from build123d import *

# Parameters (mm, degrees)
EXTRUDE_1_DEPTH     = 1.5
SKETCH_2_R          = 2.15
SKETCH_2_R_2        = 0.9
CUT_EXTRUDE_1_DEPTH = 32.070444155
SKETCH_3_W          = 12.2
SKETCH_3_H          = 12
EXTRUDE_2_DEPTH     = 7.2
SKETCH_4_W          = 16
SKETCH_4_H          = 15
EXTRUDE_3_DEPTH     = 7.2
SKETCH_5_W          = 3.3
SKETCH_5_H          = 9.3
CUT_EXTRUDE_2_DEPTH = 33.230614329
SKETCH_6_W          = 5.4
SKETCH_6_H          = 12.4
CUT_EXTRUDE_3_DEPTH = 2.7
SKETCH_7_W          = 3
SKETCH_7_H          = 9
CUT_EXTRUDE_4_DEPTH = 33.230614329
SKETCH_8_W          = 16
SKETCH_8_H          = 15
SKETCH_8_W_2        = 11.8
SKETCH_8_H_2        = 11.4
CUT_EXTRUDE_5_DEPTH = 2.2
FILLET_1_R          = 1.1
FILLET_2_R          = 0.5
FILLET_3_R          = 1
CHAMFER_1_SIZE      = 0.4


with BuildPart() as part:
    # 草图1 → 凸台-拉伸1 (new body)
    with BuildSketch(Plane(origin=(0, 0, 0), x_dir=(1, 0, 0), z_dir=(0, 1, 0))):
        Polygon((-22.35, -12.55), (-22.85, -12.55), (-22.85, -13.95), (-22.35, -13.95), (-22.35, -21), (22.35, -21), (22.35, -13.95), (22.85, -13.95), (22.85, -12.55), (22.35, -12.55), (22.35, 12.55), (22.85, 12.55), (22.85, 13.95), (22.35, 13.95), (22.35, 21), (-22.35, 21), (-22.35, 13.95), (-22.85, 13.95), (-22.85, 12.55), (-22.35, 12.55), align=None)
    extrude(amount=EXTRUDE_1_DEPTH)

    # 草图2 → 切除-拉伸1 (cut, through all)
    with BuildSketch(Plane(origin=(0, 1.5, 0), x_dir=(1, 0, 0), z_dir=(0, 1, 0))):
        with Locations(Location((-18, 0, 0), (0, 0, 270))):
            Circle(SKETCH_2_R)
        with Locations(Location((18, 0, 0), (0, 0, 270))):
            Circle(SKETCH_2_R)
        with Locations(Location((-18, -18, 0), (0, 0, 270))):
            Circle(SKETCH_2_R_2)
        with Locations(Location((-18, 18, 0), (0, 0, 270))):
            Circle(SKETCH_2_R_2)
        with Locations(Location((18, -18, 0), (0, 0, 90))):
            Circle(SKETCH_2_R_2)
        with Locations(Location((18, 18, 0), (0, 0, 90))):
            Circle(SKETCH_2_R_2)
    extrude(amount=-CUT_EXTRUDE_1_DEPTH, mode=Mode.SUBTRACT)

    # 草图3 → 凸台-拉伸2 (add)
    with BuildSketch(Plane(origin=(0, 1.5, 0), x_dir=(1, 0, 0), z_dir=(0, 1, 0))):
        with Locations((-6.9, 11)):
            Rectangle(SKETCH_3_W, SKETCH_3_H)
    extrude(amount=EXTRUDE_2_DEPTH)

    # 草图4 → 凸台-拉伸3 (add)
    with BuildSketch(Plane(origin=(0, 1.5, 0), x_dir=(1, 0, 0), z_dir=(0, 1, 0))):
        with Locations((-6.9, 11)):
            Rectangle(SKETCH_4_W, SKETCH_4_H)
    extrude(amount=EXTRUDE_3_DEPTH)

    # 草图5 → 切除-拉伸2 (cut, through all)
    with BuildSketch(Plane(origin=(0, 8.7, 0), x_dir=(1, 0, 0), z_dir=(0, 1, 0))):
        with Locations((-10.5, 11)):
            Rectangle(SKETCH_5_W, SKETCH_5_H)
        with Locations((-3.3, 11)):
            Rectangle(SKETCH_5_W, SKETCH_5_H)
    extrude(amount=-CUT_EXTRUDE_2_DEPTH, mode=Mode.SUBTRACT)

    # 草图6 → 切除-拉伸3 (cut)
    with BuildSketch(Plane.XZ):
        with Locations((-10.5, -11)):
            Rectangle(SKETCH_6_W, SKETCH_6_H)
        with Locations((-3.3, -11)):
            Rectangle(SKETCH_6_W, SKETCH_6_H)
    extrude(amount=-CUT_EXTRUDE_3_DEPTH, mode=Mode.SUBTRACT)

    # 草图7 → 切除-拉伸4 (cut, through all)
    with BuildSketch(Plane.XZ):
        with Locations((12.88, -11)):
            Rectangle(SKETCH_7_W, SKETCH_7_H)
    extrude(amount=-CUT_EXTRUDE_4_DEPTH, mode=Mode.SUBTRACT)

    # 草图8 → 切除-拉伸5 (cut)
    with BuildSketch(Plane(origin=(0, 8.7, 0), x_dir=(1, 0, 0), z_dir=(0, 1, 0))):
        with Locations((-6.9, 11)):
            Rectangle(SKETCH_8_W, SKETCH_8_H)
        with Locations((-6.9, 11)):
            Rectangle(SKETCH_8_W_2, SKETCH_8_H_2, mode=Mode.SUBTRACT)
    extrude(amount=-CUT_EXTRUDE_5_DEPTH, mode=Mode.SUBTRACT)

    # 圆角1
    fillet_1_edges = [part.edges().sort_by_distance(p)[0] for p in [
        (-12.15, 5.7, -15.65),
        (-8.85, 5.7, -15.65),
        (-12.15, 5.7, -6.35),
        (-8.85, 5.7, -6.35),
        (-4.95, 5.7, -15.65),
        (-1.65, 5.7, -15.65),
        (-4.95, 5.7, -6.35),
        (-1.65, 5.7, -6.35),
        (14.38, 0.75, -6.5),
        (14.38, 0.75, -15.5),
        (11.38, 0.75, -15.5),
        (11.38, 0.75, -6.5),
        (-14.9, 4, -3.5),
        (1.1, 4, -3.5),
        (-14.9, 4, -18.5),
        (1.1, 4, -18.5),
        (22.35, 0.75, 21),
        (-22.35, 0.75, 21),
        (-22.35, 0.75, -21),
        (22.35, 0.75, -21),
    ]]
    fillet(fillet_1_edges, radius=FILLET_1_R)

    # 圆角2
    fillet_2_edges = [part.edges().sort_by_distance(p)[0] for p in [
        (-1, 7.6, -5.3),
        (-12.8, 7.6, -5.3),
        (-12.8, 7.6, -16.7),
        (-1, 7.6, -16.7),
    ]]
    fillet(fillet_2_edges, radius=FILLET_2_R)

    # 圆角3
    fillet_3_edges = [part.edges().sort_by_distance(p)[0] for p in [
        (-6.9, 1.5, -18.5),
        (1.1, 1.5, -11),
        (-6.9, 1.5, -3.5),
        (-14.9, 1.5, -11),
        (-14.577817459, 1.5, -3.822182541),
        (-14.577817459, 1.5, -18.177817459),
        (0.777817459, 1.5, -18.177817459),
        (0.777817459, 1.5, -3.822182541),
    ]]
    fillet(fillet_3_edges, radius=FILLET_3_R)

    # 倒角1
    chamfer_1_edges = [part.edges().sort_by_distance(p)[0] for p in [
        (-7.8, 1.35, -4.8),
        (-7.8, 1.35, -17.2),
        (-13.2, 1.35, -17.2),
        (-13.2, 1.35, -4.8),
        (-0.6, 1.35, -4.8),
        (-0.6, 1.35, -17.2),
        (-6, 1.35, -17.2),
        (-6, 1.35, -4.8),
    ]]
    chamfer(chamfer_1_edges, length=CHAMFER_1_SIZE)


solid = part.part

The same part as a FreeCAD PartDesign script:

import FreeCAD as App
import Part
import Sketcher

V = App.Vector


def edges_at(feature, points):
    """Names of the edges that pass closest to the given points."""
    edges = feature.Shape.Edges
    near = lambda p: min(range(len(edges)), key=lambda i: edges[i].distToShape(Part.Vertex(*p))[0])
    return sorted({f"Edge{near(p) + 1}" for p in points})

doc = App.newDocument("Part")
params = doc.addObject("Spreadsheet::Sheet", "Params")
for row, (alias, value) in enumerate([
    ("sketch1_width", "0.5 mm"),
    ("sketch1_width2", "44.7 mm"),
    ("sketch1_height", "1.4 mm"),
    ("sketch1_height2", "25.1 mm"),
    ("pad1_length", "1.5 mm"),
    ("sketch2_diameter", "4.3 mm"),
    ("sketch2_diameter2", "1.8 mm"),
    ("sketch3_height", "12 mm"),
    ("sketch3_width", "12.2 mm"),
    ("pad2_length", "7.2 mm"),
    ("sketch4_width", "16 mm"),
    ("sketch4_height", "15 mm"),
    ("pad3_length", "7.2 mm"),
    ("sketch5_width", "3.3 mm"),
    ("sketch5_height", "9.3 mm"),
    ("sketch6_width", "5.4 mm"),
    ("sketch6_height", "12.4 mm"),
    ("pocket3_length", "2.7 mm"),
    ("sketch7_width", "3 mm"),
    ("sketch7_height", "9 mm"),
    ("sketch8_width", "16 mm"),
    ("sketch8_height", "15 mm"),
    ("sketch8_width2", "11.8 mm"),
    ("sketch8_height2", "11.4 mm"),
    ("pocket5_length", "2.2 mm"),
    ("fillet_radius", "1.1 mm"),
    ("fillet2_radius", "0.5 mm"),
    ("fillet3_radius", "1 mm"),
    ("chamfer_size", "0.4 mm"),
], start=1):
    params.set(f"A{row}", alias)
    params.set(f"B{row}", "=" + value)
    params.setAlias(f"B{row}", alias)

body = doc.addObject("PartDesign::Body", "Body")

# Sketch on XZ plane
sketch1 = body.newObject("Sketcher::SketchObject", "Sketch")
sketch1.AttachmentSupport = (doc.getObject("XZ_Plane"), [""])
sketch1.MapMode = "FlatFace"
sketch1.addGeometry(Part.LineSegment(V(-22.4, 12.6, 0), V(-22.9, 12.6, 0)), False)
sketch1.addGeometry(Part.LineSegment(V(-22.9, 12.6, 0), V(-22.9, 13.9, 0)), False)
sketch1.addGeometry(Part.LineSegment(V(-22.9, 13.9, 0), V(-22.4, 13.9, 0)), False)
sketch1.addGeometry(Part.LineSegment(V(-22.4, 13.9, 0), V(-22.4, 21, 0)), False)
sketch1.addGeometry(Part.LineSegment(V(-22.4, 21, 0), V(22.4, 21, 0)), False)
sketch1.addGeometry(Part.LineSegment(V(22.4, 21, 0), V(22.4, 13.9, 0)), False)
sketch1.addGeometry(Part.LineSegment(V(22.4, 13.9, 0), V(22.9, 13.9, 0)), False)
sketch1.addGeometry(Part.LineSegment(V(22.9, 13.9, 0), V(22.9, 12.6, 0)), False)
sketch1.addGeometry(Part.LineSegment(V(22.9, 12.6, 0), V(22.4, 12.6, 0)), False)
sketch1.addGeometry(Part.LineSegment(V(22.4, 12.6, 0), V(22.4, -12.6, 0)), False)
sketch1.addGeometry(Part.LineSegment(V(22.4, -12.6, 0), V(22.9, -12.6, 0)), False)
sketch1.addGeometry(Part.LineSegment(V(22.9, -12.6, 0), V(22.9, -13.9, 0)), False)
sketch1.addGeometry(Part.LineSegment(V(22.9, -13.9, 0), V(22.4, -13.9, 0)), False)
sketch1.addGeometry(Part.LineSegment(V(22.4, -13.9, 0), V(22.4, -21, 0)), False)
sketch1.addGeometry(Part.LineSegment(V(22.4, -21, 0), V(-22.4, -21, 0)), False)
sketch1.addGeometry(Part.LineSegment(V(-22.4, -21, 0), V(-22.4, -13.9, 0)), False)
sketch1.addGeometry(Part.LineSegment(V(-22.4, -13.9, 0), V(-22.9, -13.9, 0)), False)
sketch1.addGeometry(Part.LineSegment(V(-22.9, -13.9, 0), V(-22.9, -12.6, 0)), False)
sketch1.addGeometry(Part.LineSegment(V(-22.9, -12.6, 0), V(-22.4, -12.6, 0)), False)
sketch1.addGeometry(Part.LineSegment(V(-22.4, -12.6, 0), V(-22.4, 12.6, 0)), False)
sketch1.addConstraint(Sketcher.Constraint("Coincident", 0, 2, 1, 1))
sketch1.addConstraint(Sketcher.Constraint("Coincident", 1, 2, 2, 1))
sketch1.addConstraint(Sketcher.Constraint("Coincident", 2, 2, 3, 1))
sketch1.addConstraint(Sketcher.Constraint("Coincident", 3, 2, 4, 1))
sketch1.addConstraint(Sketcher.Constraint("Coincident", 4, 2, 5, 1))
sketch1.addConstraint(Sketcher.Constraint("Coincident", 5, 2, 6, 1))
sketch1.addConstraint(Sketcher.Constraint("Coincident", 6, 2, 7, 1))
sketch1.addConstraint(Sketcher.Constraint("Coincident", 7, 2, 8, 1))
sketch1.addConstraint(Sketcher.Constraint("Coincident", 8, 2, 9, 1))
sketch1.addConstraint(Sketcher.Constraint("Coincident", 9, 2, 10, 1))
sketch1.addConstraint(Sketcher.Constraint("Coincident", 10, 2, 11, 1))
sketch1.addConstraint(Sketcher.Constraint("Coincident", 11, 2, 12, 1))
sketch1.addConstraint(Sketcher.Constraint("Coincident", 12, 2, 13, 1))
sketch1.addConstraint(Sketcher.Constraint("Coincident", 13, 2, 14, 1))
sketch1.addConstraint(Sketcher.Constraint("Coincident", 14, 2, 15, 1))
sketch1.addConstraint(Sketcher.Constraint("Coincident", 15, 2, 16, 1))
sketch1.addConstraint(Sketcher.Constraint("Coincident", 16, 2, 17, 1))
sketch1.addConstraint(Sketcher.Constraint("Coincident", 17, 2, 18, 1))
sketch1.addConstraint(Sketcher.Constraint("Coincident", 18, 2, 19, 1))
sketch1.addConstraint(Sketcher.Constraint("Coincident", 19, 2, 0, 1))
sketch1.addConstraint(Sketcher.Constraint("Horizontal", 0))
sketch1.addConstraint(Sketcher.Constraint("Vertical", 1))
sketch1.addConstraint(Sketcher.Constraint("Horizontal", 2))
sketch1.addConstraint(Sketcher.Constraint("Vertical", 3))
sketch1.addConstraint(Sketcher.Constraint("Horizontal", 4))
sketch1.addConstraint(Sketcher.Constraint("Vertical", 5))
sketch1.addConstraint(Sketcher.Constraint("Horizontal", 6))
sketch1.addConstraint(Sketcher.Constraint("Vertical", 7))
sketch1.addConstraint(Sketcher.Constraint("Horizontal", 8))
sketch1.addConstraint(Sketcher.Constraint("Vertical", 9))
sketch1.addConstraint(Sketcher.Constraint("Horizontal", 10))
sketch1.addConstraint(Sketcher.Constraint("Vertical", 11))
sketch1.addConstraint(Sketcher.Constraint("Horizontal", 12))
sketch1.addConstraint(Sketcher.Constraint("Vertical", 13))
sketch1.addConstraint(Sketcher.Constraint("Horizontal", 14))
sketch1.addConstraint(Sketcher.Constraint("Vertical", 15))
sketch1.addConstraint(Sketcher.Constraint("Horizontal", 16))
sketch1.addConstraint(Sketcher.Constraint("Vertical", 17))
sketch1.addConstraint(Sketcher.Constraint("Horizontal", 18))
sketch1.addConstraint(Sketcher.Constraint("Vertical", 19))
sketch1.addConstraint(Sketcher.Constraint("Symmetric", 0, 2, 10, 2, -1, 1))
sketch1.addConstraint(Sketcher.Constraint("Symmetric", 2, 2, 12, 2, -1, 1))
sketch1.addConstraint(Sketcher.Constraint("Symmetric", 4, 2, 14, 2, -1, 1))
sketch1.addConstraint(Sketcher.Constraint("Symmetric", 6, 2, 16, 2, -1, 1))
sketch1.addConstraint(Sketcher.Constraint("Symmetric", 8, 2, 18, 2, -1, 1))
sketch1.addConstraint(Sketcher.Constraint("Symmetric", 2, 2, 5, 2, -2))
sketch1.addConstraint(Sketcher.Constraint("Symmetric", 0, 2, 7, 2, -2))
sketch1.addConstraint(Sketcher.Constraint("Vertical", 5, 2, 8, 2))
sketch1.addConstraint(Sketcher.Constraint("DistanceX", 0, 2, 0, 1, 0.5))
sketch1.addConstraint(Sketcher.Constraint("DistanceX", 4, 1, 4, 2, 44.7))
sketch1.addConstraint(Sketcher.Constraint("DistanceY", 1, 1, 1, 2, 1.4))
sketch1.addConstraint(Sketcher.Constraint("DistanceY", 9, 2, 9, 1, 25.1))
sketch1.addConstraint(Sketcher.Constraint("DistanceY", -1, 1, 3, 2, 21.0))
sketch1.setExpression("Constraints[48]", "Params.sketch1_width")
sketch1.setExpression("Constraints[49]", "Params.sketch1_width2")
sketch1.setExpression("Constraints[50]", "Params.sketch1_height")
sketch1.setExpression("Constraints[51]", "Params.sketch1_height2")
pad1 = body.newObject("PartDesign::Pad", "Pad")
pad1.Profile = sketch1
pad1.setExpression("Length", "Params.pad1_length")
pad1.Reversed = True

# Sketch on XZ plane
sketch2 = body.newObject("Sketcher::SketchObject", "Sketch001")
sketch2.AttachmentSupport = (doc.getObject("XZ_Plane"), [""])
sketch2.MapMode = "FlatFace"
sketch2.AttachmentOffset = App.Placement(V(0, 0, -1.5), App.Rotation())
sketch2.addGeometry(Part.Circle(V(-18, 0, 0), V(0, 0, 1), 2.1), False)
sketch2.addGeometry(Part.Circle(V(18, 0, 0), V(0, 0, 1), 2.1), False)
sketch2.addGeometry(Part.Circle(V(-18, 18, 0), V(0, 0, 1), 0.9), False)
sketch2.addGeometry(Part.Circle(V(-18, -18, 0), V(0, 0, 1), 0.9), False)
sketch2.addGeometry(Part.Circle(V(18, 18, 0), V(0, 0, 1), 0.9), False)
sketch2.addGeometry(Part.Circle(V(18, -18, 0), V(0, 0, 1), 0.9), False)
sketch2.addConstraint(Sketcher.Constraint("Equal", 0, 1))
sketch2.addConstraint(Sketcher.Constraint("Equal", 2, 3))
sketch2.addConstraint(Sketcher.Constraint("Equal", 3, 4))
sketch2.addConstraint(Sketcher.Constraint("Equal", 4, 5))
sketch2.addConstraint(Sketcher.Constraint("Symmetric", 0, 3, 1, 3, -1, 1))
sketch2.addConstraint(Sketcher.Constraint("Symmetric", 3, 3, 4, 3, -1, 1))
sketch2.addConstraint(Sketcher.Constraint("Symmetric", 2, 3, 5, 3, -1, 1))
sketch2.addConstraint(Sketcher.Constraint("Symmetric", 2, 3, 4, 3, -2))
sketch2.addConstraint(Sketcher.Constraint("PointOnObject", 0, 3, -1))
sketch2.addConstraint(Sketcher.Constraint("Vertical", 0, 3, 2, 3))
sketch2.addConstraint(Sketcher.Constraint("Diameter", 0, 4.3))
sketch2.addConstraint(Sketcher.Constraint("Diameter", 2, 1.8))
sketch2.addConstraint(Sketcher.Constraint("DistanceX", 0, 3, -1, 1, 18.0))
sketch2.addConstraint(Sketcher.Constraint("DistanceY", -1, 1, 2, 3, 18.0))
sketch2.setExpression("Constraints[10]", "Params.sketch2_diameter")
sketch2.setExpression("Constraints[11]", "Params.sketch2_diameter2")
pocket1 = body.newObject("PartDesign::Pocket", "Pocket")
pocket1.Profile = sketch2
pocket1.Type = "ThroughAll"
pocket1.Reversed = True

# Sketch on XZ plane
sketch3 = body.newObject("Sketcher::SketchObject", "Sketch002")
sketch3.AttachmentSupport = (doc.getObject("XZ_Plane"), [""])
sketch3.MapMode = "FlatFace"
sketch3.AttachmentOffset = App.Placement(V(0, 0, -1.5), App.Rotation())
sketch3.addGeometry(Part.LineSegment(V(-13, -17, 0), V(-13, -5, 0)), False)
sketch3.addGeometry(Part.LineSegment(V(-13, -5, 0), V(-1, -5, 0)), False)
sketch3.addGeometry(Part.LineSegment(V(-1, -5, 0), V(-1, -17, 0)), False)
sketch3.addGeometry(Part.LineSegment(V(-1, -17, 0), V(-13, -17, 0)), False)
sketch3.addConstraint(Sketcher.Constraint("Coincident", 0, 2, 1, 1))
sketch3.addConstraint(Sketcher.Constraint("Coincident", 1, 2, 2, 1))
sketch3.addConstraint(Sketcher.Constraint("Coincident", 2, 2, 3, 1))
sketch3.addConstraint(Sketcher.Constraint("Coincident", 3, 2, 0, 1))
sketch3.addConstraint(Sketcher.Constraint("Vertical", 0))
sketch3.addConstraint(Sketcher.Constraint("Horizontal", 1))
sketch3.addConstraint(Sketcher.Constraint("Vertical", 2))
sketch3.addConstraint(Sketcher.Constraint("Horizontal", 3))
sketch3.addConstraint(Sketcher.Constraint("DistanceY", 0, 1, 0, 2, 12.0))
sketch3.addConstraint(Sketcher.Constraint("DistanceX", 1, 1, 1, 2, 12.2))
sketch3.addConstraint(Sketcher.Constraint("DistanceX", 0, 2, -1, 1, 13.0))
sketch3.addConstraint(Sketcher.Constraint("DistanceY", 0, 2, -1, 1, 5.0))
sketch3.setExpression("Constraints[8]", "Params.sketch3_height")
sketch3.setExpression("Constraints[9]", "Params.sketch3_width")
pad2 = body.newObject("PartDesign::Pad", "Pad001")
pad2.Profile = sketch3
pad2.setExpression("Length", "Params.pad2_length")
pad2.Reversed = True

# Sketch on XZ plane
sketch4 = body.newObject("Sketcher::SketchObject", "Sketch003")
sketch4.AttachmentSupport = (doc.getObject("XZ_Plane"), [""])
sketch4.MapMode = "FlatFace"
sketch4.AttachmentOffset = App.Placement(V(0, 0, -1.5), App.Rotation())
sketch4.addGeometry(Part.LineSegment(V(-15, -18, 0), V(-15, -4, 0)), False)
sketch4.addGeometry(Part.LineSegment(V(-15, -4, 0), V(1, -4, 0)), False)
sketch4.addGeometry(Part.LineSegment(V(1, -4, 0), V(1, -18, 0)), False)
sketch4.addGeometry(Part.LineSegment(V(1, -18, 0), V(-15, -18, 0)), False)
sketch4.addConstraint(Sketcher.Constraint("Coincident", 0, 2, 1, 1))
sketch4.addConstraint(Sketcher.Constraint("Coincident", 1, 2, 2, 1))
sketch4.addConstraint(Sketcher.Constraint("Coincident", 2, 2, 3, 1))
sketch4.addConstraint(Sketcher.Constraint("Coincident", 3, 2, 0, 1))
sketch4.addConstraint(Sketcher.Constraint("Vertical", 0))
sketch4.addConstraint(Sketcher.Constraint("Horizontal", 1))
sketch4.addConstraint(Sketcher.Constraint("Vertical", 2))
sketch4.addConstraint(Sketcher.Constraint("Horizontal", 3))
sketch4.addConstraint(Sketcher.Constraint("DistanceX", 1, 1, 1, 2, 16.0))
sketch4.addConstraint(Sketcher.Constraint("DistanceY", 0, 1, 0, 2, 15.0))
sketch4.addConstraint(Sketcher.Constraint("DistanceX", 0, 2, -1, 1, 14.9))
sketch4.addConstraint(Sketcher.Constraint("DistanceY", 0, 2, -1, 1, 3.5))
sketch4.setExpression("Constraints[8]", "Params.sketch4_width")
sketch4.setExpression("Constraints[9]", "Params.sketch4_height")
pad3 = body.newObject("PartDesign::Pad", "Pad002")
pad3.Profile = sketch4
pad3.setExpression("Length", "Params.pad3_length")
pad3.Reversed = True

# Sketch on XZ plane
sketch5 = body.newObject("Sketcher::SketchObject", "Sketch004")
sketch5.AttachmentSupport = (doc.getObject("XZ_Plane"), [""])
sketch5.MapMode = "FlatFace"
sketch5.AttachmentOffset = App.Placement(V(0, 0, -8.7), App.Rotation())
sketch5.addGeometry(Part.LineSegment(V(-12.2, -15.7, 0), V(-12.2, -6.3, 0)), False)
sketch5.addGeometry(Part.LineSegment(V(-12.2, -6.3, 0), V(-8.8, -6.3, 0)), False)
sketch5.addGeometry(Part.LineSegment(V(-8.8, -6.3, 0), V(-8.8, -15.7, 0)), False)
sketch5.addGeometry(Part.LineSegment(V(-8.8, -15.7, 0), V(-12.2, -15.7, 0)), False)
sketch5.addGeometry(Part.LineSegment(V(-5, -15.7, 0), V(-5, -6.3, 0)), False)
sketch5.addGeometry(Part.LineSegment(V(-5, -6.3, 0), V(-1.6, -6.3, 0)), False)
sketch5.addGeometry(Part.LineSegment(V(-1.6, -6.3, 0), V(-1.6, -15.7, 0)), False)
sketch5.addGeometry(Part.LineSegment(V(-1.6, -15.7, 0), V(-5, -15.7, 0)), False)
sketch5.addConstraint(Sketcher.Constraint("Coincident", 0, 2, 1, 1))
sketch5.addConstraint(Sketcher.Constraint("Coincident", 1, 2, 2, 1))
sketch5.addConstraint(Sketcher.Constraint("Coincident", 2, 2, 3, 1))
sketch5.addConstraint(Sketcher.Constraint("Coincident", 3, 2, 0, 1))
sketch5.addConstraint(Sketcher.Constraint("Coincident", 4, 2, 5, 1))
sketch5.addConstraint(Sketcher.Constraint("Coincident", 5, 2, 6, 1))
sketch5.addConstraint(Sketcher.Constraint("Coincident", 6, 2, 7, 1))
sketch5.addConstraint(Sketcher.Constraint("Coincident", 7, 2, 4, 1))
sketch5.addConstraint(Sketcher.Constraint("Vertical", 0))
sketch5.addConstraint(Sketcher.Constraint("Horizontal", 1))
sketch5.addConstraint(Sketcher.Constraint("Vertical", 2))
sketch5.addConstraint(Sketcher.Constraint("Horizontal", 3))
sketch5.addConstraint(Sketcher.Constraint("Vertical", 4))
sketch5.addConstraint(Sketcher.Constraint("Horizontal", 5))
sketch5.addConstraint(Sketcher.Constraint("Vertical", 6))
sketch5.addConstraint(Sketcher.Constraint("Horizontal", 7))
sketch5.addConstraint(Sketcher.Constraint("Horizontal", 1, 2, 4, 2))
sketch5.addConstraint(Sketcher.Constraint("Horizontal", 3, 2, 6, 2))
sketch5.addConstraint(Sketcher.Constraint("Equal", 3, 5))
sketch5.addConstraint(Sketcher.Constraint("DistanceX", 1, 1, 1, 2, 3.3))
sketch5.addConstraint(Sketcher.Constraint("DistanceY", 0, 1, 0, 2, 9.3))
sketch5.addConstraint(Sketcher.Constraint("DistanceX", 1, 2, 4, 2, 3.9))
sketch5.addConstraint(Sketcher.Constraint("DistanceX", 0, 2, -1, 1, 12.15))
sketch5.addConstraint(Sketcher.Constraint("DistanceY", 0, 2, -1, 1, 6.35))
sketch5.setExpression("Constraints[19]", "Params.sketch5_width")
sketch5.setExpression("Constraints[20]", "Params.sketch5_height")
pocket2 = body.newObject("PartDesign::Pocket", "Pocket001")
pocket2.Profile = sketch5
pocket2.Type = "ThroughAll"
pocket2.Reversed = True

# Sketch on XZ plane
sketch6 = body.newObject("Sketcher::SketchObject", "Sketch005")
sketch6.AttachmentSupport = (doc.getObject("XZ_Plane"), [""])
sketch6.MapMode = "FlatFace"
sketch6.addGeometry(Part.LineSegment(V(-13, -5, 0), V(-13, -17, 0)), False)
sketch6.addGeometry(Part.LineSegment(V(-13, -17, 0), V(-8, -17, 0)), False)
sketch6.addGeometry(Part.LineSegment(V(-8, -17, 0), V(-8, -5, 0)), False)
sketch6.addGeometry(Part.LineSegment(V(-8, -5, 0), V(-13, -5, 0)), False)
sketch6.addGeometry(Part.LineSegment(V(-6, -5, 0), V(-6, -17, 0)), False)
sketch6.addGeometry(Part.LineSegment(V(-6, -17, 0), V(-1, -17, 0)), False)
sketch6.addGeometry(Part.LineSegment(V(-1, -17, 0), V(-1, -5, 0)), False)
sketch6.addGeometry(Part.LineSegment(V(-1, -5, 0), V(-6, -5, 0)), False)
sketch6.addConstraint(Sketcher.Constraint("Coincident", 0, 2, 1, 1))
sketch6.addConstraint(Sketcher.Constraint("Coincident", 1, 2, 2, 1))
sketch6.addConstraint(Sketcher.Constraint("Coincident", 2, 2, 3, 1))
sketch6.addConstraint(Sketcher.Constraint("Coincident", 3, 2, 0, 1))
sketch6.addConstraint(Sketcher.Constraint("Coincident", 4, 2, 5, 1))
sketch6.addConstraint(Sketcher.Constraint("Coincident", 5, 2, 6, 1))
sketch6.addConstraint(Sketcher.Constraint("Coincident", 6, 2, 7, 1))
sketch6.addConstraint(Sketcher.Constraint("Coincident", 7, 2, 4, 1))
sketch6.addConstraint(Sketcher.Constraint("Vertical", 0))
sketch6.addConstraint(Sketcher.Constraint("Horizontal", 1))
sketch6.addConstraint(Sketcher.Constraint("Vertical", 2))
sketch6.addConstraint(Sketcher.Constraint("Horizontal", 3))
sketch6.addConstraint(Sketcher.Constraint("Vertical", 4))
sketch6.addConstraint(Sketcher.Constraint("Horizontal", 5))
sketch6.addConstraint(Sketcher.Constraint("Vertical", 6))
sketch6.addConstraint(Sketcher.Constraint("Horizontal", 7))
sketch6.addConstraint(Sketcher.Constraint("Horizontal", 1, 2, 4, 2))
sketch6.addConstraint(Sketcher.Constraint("Horizontal", 3, 2, 6, 2))
sketch6.addConstraint(Sketcher.Constraint("Equal", 3, 5))
sketch6.addConstraint(Sketcher.Constraint("DistanceX", 1, 1, 1, 2, 5.4))
sketch6.addConstraint(Sketcher.Constraint("DistanceY", 0, 2, 0, 1, 12.4))
sketch6.addConstraint(Sketcher.Constraint("DistanceX", 4, 2, -1, 1, 6.0))
sketch6.addConstraint(Sketcher.Constraint("DistanceX", 0, 2, -1, 1, 13.2))
sketch6.addConstraint(Sketcher.Constraint("DistanceY", 0, 2, -1, 1, 17.2))
sketch6.setExpression("Constraints[19]", "Params.sketch6_width")
sketch6.setExpression("Constraints[20]", "Params.sketch6_height")
pocket3 = body.newObject("PartDesign::Pocket", "Pocket002")
pocket3.Profile = sketch6
pocket3.setExpression("Length", "Params.pocket3_length")

# Sketch on XZ plane
sketch7 = body.newObject("Sketcher::SketchObject", "Sketch006")
sketch7.AttachmentSupport = (doc.getObject("XZ_Plane"), [""])
sketch7.MapMode = "FlatFace"
sketch7.addGeometry(Part.LineSegment(V(11.4, -6.5, 0), V(11.4, -15.5, 0)), False)
sketch7.addGeometry(Part.LineSegment(V(11.4, -15.5, 0), V(14.4, -15.5, 0)), False)
sketch7.addGeometry(Part.LineSegment(V(14.4, -15.5, 0), V(14.4, -6.5, 0)), False)
sketch7.addGeometry(Part.LineSegment(V(14.4, -6.5, 0), V(11.4, -6.5, 0)), False)
sketch7.addConstraint(Sketcher.Constraint("Coincident", 0, 2, 1, 1))
sketch7.addConstraint(Sketcher.Constraint("Coincident", 1, 2, 2, 1))
sketch7.addConstraint(Sketcher.Constraint("Coincident", 2, 2, 3, 1))
sketch7.addConstraint(Sketcher.Constraint("Coincident", 3, 2, 0, 1))
sketch7.addConstraint(Sketcher.Constraint("Vertical", 0))
sketch7.addConstraint(Sketcher.Constraint("Horizontal", 1))
sketch7.addConstraint(Sketcher.Constraint("Vertical", 2))
sketch7.addConstraint(Sketcher.Constraint("Horizontal", 3))
sketch7.addConstraint(Sketcher.Constraint("DistanceX", 1, 1, 1, 2, 3.0))
sketch7.addConstraint(Sketcher.Constraint("DistanceY", 0, 2, 0, 1, 9.0))
sketch7.addConstraint(Sketcher.Constraint("DistanceY", 0, 2, -1, 1, 15.5))
sketch7.addConstraint(Sketcher.Constraint("DistanceX", -1, 1, 0, 2, 11.38))
sketch7.setExpression("Constraints[8]", "Params.sketch7_width")
sketch7.setExpression("Constraints[9]", "Params.sketch7_height")
pocket4 = body.newObject("PartDesign::Pocket", "Pocket003")
pocket4.Profile = sketch7
pocket4.Type = "ThroughAll"

# Sketch on XZ plane
sketch8 = body.newObject("Sketcher::SketchObject", "Sketch007")
sketch8.AttachmentSupport = (doc.getObject("XZ_Plane"), [""])
sketch8.MapMode = "FlatFace"
sketch8.AttachmentOffset = App.Placement(V(0, 0, -8.7), App.Rotation())
sketch8.addGeometry(Part.LineSegment(V(-15, -18, 0), V(-15, -4, 0)), False)
sketch8.addGeometry(Part.LineSegment(V(-15, -4, 0), V(1, -4, 0)), False)
sketch8.addGeometry(Part.LineSegment(V(1, -4, 0), V(1, -18, 0)), False)
sketch8.addGeometry(Part.LineSegment(V(1, -18, 0), V(-15, -18, 0)), False)
sketch8.addGeometry(Part.LineSegment(V(-1, -5, 0), V(-13, -5, 0)), False)
sketch8.addGeometry(Part.LineSegment(V(-13, -5, 0), V(-13, -17, 0)), False)
sketch8.addGeometry(Part.LineSegment(V(-13, -17, 0), V(-1, -17, 0)), False)
sketch8.addGeometry(Part.LineSegment(V(-1, -17, 0), V(-1, -5, 0)), False)
sketch8.addConstraint(Sketcher.Constraint("Coincident", 0, 2, 1, 1))
sketch8.addConstraint(Sketcher.Constraint("Coincident", 1, 2, 2, 1))
sketch8.addConstraint(Sketcher.Constraint("Coincident", 2, 2, 3, 1))
sketch8.addConstraint(Sketcher.Constraint("Coincident", 3, 2, 0, 1))
sketch8.addConstraint(Sketcher.Constraint("Coincident", 4, 2, 5, 1))
sketch8.addConstraint(Sketcher.Constraint("Coincident", 5, 2, 6, 1))
sketch8.addConstraint(Sketcher.Constraint("Coincident", 6, 2, 7, 1))
sketch8.addConstraint(Sketcher.Constraint("Coincident", 7, 2, 4, 1))
sketch8.addConstraint(Sketcher.Constraint("Vertical", 0))
sketch8.addConstraint(Sketcher.Constraint("Horizontal", 1))
sketch8.addConstraint(Sketcher.Constraint("Vertical", 2))
sketch8.addConstraint(Sketcher.Constraint("Horizontal", 3))
sketch8.addConstraint(Sketcher.Constraint("Horizontal", 4))
sketch8.addConstraint(Sketcher.Constraint("Vertical", 5))
sketch8.addConstraint(Sketcher.Constraint("Horizontal", 6))
sketch8.addConstraint(Sketcher.Constraint("Vertical", 7))
sketch8.addConstraint(Sketcher.Constraint("DistanceX", 1, 1, 1, 2, 16.0))
sketch8.addConstraint(Sketcher.Constraint("DistanceY", 0, 1, 0, 2, 15.0))
sketch8.addConstraint(Sketcher.Constraint("DistanceX", 4, 2, 4, 1, 11.8))
sketch8.addConstraint(Sketcher.Constraint("DistanceY", 5, 2, 5, 1, 11.4))
sketch8.addConstraint(Sketcher.Constraint("DistanceX", 6, 2, -1, 1, 1.0))
sketch8.addConstraint(Sketcher.Constraint("DistanceX", 0, 2, -1, 1, 14.9))
sketch8.addConstraint(Sketcher.Constraint("DistanceY", 0, 2, -1, 1, 3.5))
sketch8.addConstraint(Sketcher.Constraint("DistanceY", 4, 2, -1, 1, 5.3))
sketch8.setExpression("Constraints[16]", "Params.sketch8_width")
sketch8.setExpression("Constraints[17]", "Params.sketch8_height")
sketch8.setExpression("Constraints[18]", "Params.sketch8_width2")
sketch8.setExpression("Constraints[19]", "Params.sketch8_height2")
pocket5 = body.newObject("PartDesign::Pocket", "Pocket004")
pocket5.Profile = sketch8
pocket5.setExpression("Length", "Params.pocket5_length")
pocket5.Reversed = True
doc.recompute()

fillet = body.newObject("PartDesign::Fillet", "Fillet")
fillet.Base = (pocket5, edges_at(pocket5, [
    (-12.15, 5.7, -15.65),
    (-8.85, 5.7, -15.65),
    (-12.15, 5.7, -6.35),
    (-8.85, 5.7, -6.35),
    (-4.95, 5.7, -15.65),
    (-1.65, 5.7, -15.65),
    (-4.95, 5.7, -6.35),
    (-1.65, 5.7, -6.35),
    (14.38, 0.75, -6.5),
    (14.38, 0.75, -15.5),
    (11.38, 0.75, -15.5),
    (11.38, 0.75, -6.5),
    (-14.9, 4, -3.5),
    (1.1, 4, -3.5),
    (-14.9, 4, -18.5),
    (1.1, 4, -18.5),
    (22.35, 0.75, 21),
    (-22.35, 0.75, 21),
    (-22.35, 0.75, -21),
    (22.35, 0.75, -21),
]))
fillet.setExpression("Radius", "Params.fillet_radius")
doc.recompute()

fillet2 = body.newObject("PartDesign::Fillet", "Fillet001")
fillet2.Base = (fillet, edges_at(fillet, [
    (-1, 7.6, -5.3),
    (-12.8, 7.6, -5.3),
    (-12.8, 7.6, -16.7),
    (-1, 7.6, -16.7),
]))
fillet2.setExpression("Radius", "Params.fillet2_radius")
doc.recompute()

fillet3 = body.newObject("PartDesign::Fillet", "Fillet002")
fillet3.Base = (fillet2, edges_at(fillet2, [
    (-6.9, 1.5, -18.5),
    (1.1, 1.5, -11),
    (-6.9, 1.5, -3.5),
    (-14.9, 1.5, -11),
    (-14.578, 1.5, -3.822),
    (-14.578, 1.5, -18.178),
    (0.778, 1.5, -18.178),
    (0.778, 1.5, -3.822),
]))
fillet3.setExpression("Radius", "Params.fillet3_radius")
doc.recompute()

chamfer = body.newObject("PartDesign::Chamfer", "Chamfer")
chamfer.Base = (fillet3, edges_at(fillet3, [
    (-7.8, 1.35, -4.8),
    (-7.8, 1.35, -17.2),
    (-13.2, 1.35, -17.2),
    (-13.2, 1.35, -4.8),
    (-0.6, 1.35, -4.8),
    (-0.6, 1.35, -17.2),
    (-6, 1.35, -17.2),
    (-6, 1.35, -4.8),
]))
chamfer.setExpression("Size", "Params.chamfer_size")

doc.recompute()
